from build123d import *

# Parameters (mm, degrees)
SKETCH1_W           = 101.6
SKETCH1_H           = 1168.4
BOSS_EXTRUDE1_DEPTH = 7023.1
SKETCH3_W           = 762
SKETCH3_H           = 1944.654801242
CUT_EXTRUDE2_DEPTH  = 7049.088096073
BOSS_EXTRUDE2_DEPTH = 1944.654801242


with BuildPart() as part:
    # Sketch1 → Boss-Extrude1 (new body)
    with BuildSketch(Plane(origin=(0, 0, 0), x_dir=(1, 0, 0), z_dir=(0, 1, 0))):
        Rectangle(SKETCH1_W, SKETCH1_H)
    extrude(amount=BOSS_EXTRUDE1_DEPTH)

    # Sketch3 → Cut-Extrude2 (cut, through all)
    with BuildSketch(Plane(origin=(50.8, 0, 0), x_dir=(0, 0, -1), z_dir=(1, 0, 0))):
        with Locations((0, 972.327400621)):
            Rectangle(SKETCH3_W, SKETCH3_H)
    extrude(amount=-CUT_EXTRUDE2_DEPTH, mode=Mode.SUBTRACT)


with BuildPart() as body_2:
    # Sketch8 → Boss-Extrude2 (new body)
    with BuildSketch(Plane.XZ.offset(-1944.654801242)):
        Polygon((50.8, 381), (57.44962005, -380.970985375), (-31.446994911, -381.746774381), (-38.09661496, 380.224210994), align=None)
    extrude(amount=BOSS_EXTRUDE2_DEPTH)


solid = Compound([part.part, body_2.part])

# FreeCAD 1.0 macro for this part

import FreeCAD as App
import Part
import Sketcher
Q = App.Units.Quantity

doc = App.newDocument("Part")
body = doc.addObject("PartDesign::Body", "Body")

sketch1 = body.newObject("Sketcher::SketchObject", "Sketch")
sketch1.AttachmentSupport = (doc.getObject("XZ_Plane"), [""])
sketch1.MapMode = "FlatFace"
sketch1.addGeometry(Part.LineSegment(App.Vector(-50.8, -584.2, 0), App.Vector(-50.8, 584.2, 0)), False)
sketch1.addGeometry(Part.LineSegment(App.Vector(-50.8, 584.2, 0), App.Vector(50.8, 584.2, 0)), False)
sketch1.addGeometry(Part.LineSegment(App.Vector(50.8, 584.2, 0), App.Vector(50.8, -584.2, 0)), False)
sketch1.addGeometry(Part.LineSegment(App.Vector(50.8, -584.2, 0), App.Vector(-50.8, -584.2, 0)), False)
sketch1.addConstraint(Sketcher.Constraint("Coincident", 0, 2, 1, 1))
sketch1.addConstraint(Sketcher.Constraint("Coincident", 1, 2, 2, 1))
sketch1.addConstraint(Sketcher.Constraint("Coincident", 2, 2, 3, 1))
sketch1.addConstraint(Sketcher.Constraint("Coincident", 3, 2, 0, 1))
sketch1.addConstraint(Sketcher.Constraint("Vertical", 0))
sketch1.addConstraint(Sketcher.Constraint("Horizontal", 1))
sketch1.addConstraint(Sketcher.Constraint("Vertical", 2))
sketch1.addConstraint(Sketcher.Constraint("Horizontal", 3))
sketch1.addConstraint(Sketcher.Constraint("Symmetric", 0, 2, 2, 2, -1, 1))
sketch1.addConstraint(Sketcher.Constraint("DistanceX", 1, 1, 1, 2, Q("4 in")))
sketch1.addConstraint(Sketcher.Constraint("DistanceY", 0, 1, 0, 2, Q("46 in")))
pad1 = body.newObject("PartDesign::Pad", "Pad")
pad1.Profile = sketch1
pad1.Length = Q("276.5 in")
pad1.Reversed = True

sketch2 = body.newObject("Sketcher::SketchObject", "Sketch001")
sketch2.AttachmentSupport = (doc.getObject("YZ_Plane"), [""])
sketch2.MapMode = "FlatFace"
sketch2.AttachmentOffset = App.Placement(App.Vector(0, 0, 2 * 25.4), App.Rotation())
sketch2.addGeometry(Part.LineSegment(App.Vector(1944.654801, 381, 0), App.Vector(0, 381, 0)), False)
sketch2.addGeometry(Part.LineSegment(App.Vector(0, 381, 0), App.Vector(0, -381, 0)), False)
sketch2.addGeometry(Part.LineSegment(App.Vector(0, -381, 0), App.Vector(1944.654801, -381, 0)), False)
sketch2.addGeometry(Part.LineSegment(App.Vector(1944.654801, -381, 0), App.Vector(1944.654801, 381, 0)), False)
sketch2.addConstraint(Sketcher.Constraint("Coincident", 0, 2, 1, 1))
sketch2.addConstraint(Sketcher.Constraint("Coincident", 1, 2, 2, 1))
sketch2.addConstraint(Sketcher.Constraint("Coincident", 2, 2, 3, 1))
sketch2.addConstraint(Sketcher.Constraint("Coincident", 3, 2, 0, 1))
sketch2.addConstraint(Sketcher.Constraint("Horizontal", 0))
sketch2.addConstraint(Sketcher.Constraint("Vertical", 1))
sketch2.addConstraint(Sketcher.Constraint("Horizontal", 2))
sketch2.addConstraint(Sketcher.Constraint("Vertical", 3))
sketch2.addConstraint(Sketcher.Constraint("Symmetric", 0, 2, 1, 2, -1, 1))
sketch2.addConstraint(Sketcher.Constraint("DistanceY", 1, 2, 1, 1, Q("30 in")))
sketch2.addConstraint(Sketcher.Constraint("DistanceX", 0, 2, 0, 1, Q("1944.654801 mm")))
pocket1 = body.newObject("PartDesign::Pocket", "Pocket")
pocket1.Profile = sketch2
pocket1.Type = "ThroughAll"
body2 = doc.addObject("PartDesign::Body", "Body001")

sketch3 = body2.newObject("Sketcher::SketchObject", "Sketch002")
sketch3.AttachmentSupport = (doc.getObject("XZ_Plane001"), [""])
sketch3.MapMode = "FlatFace"
sketch3.AttachmentOffset = App.Placement(App.Vector(0, 0, -1944.654801), App.Rotation())
sketch3.addGeometry(Part.LineSegment(App.Vector(57.44962, -380.970985, 0), App.Vector(50.8, 381, 0)), False)
sketch3.addGeometry(Part.LineSegment(App.Vector(50.8, 381, 0), App.Vector(-38.096615, 380.224211, 0)), False)
sketch3.addGeometry(Part.LineSegment(App.Vector(-38.096615, 380.224211, 0), App.Vector(-31.446995, -381.746774, 0)), False)
sketch3.addGeometry(Part.LineSegment(App.Vector(-31.446995, -381.746774, 0), App.Vector(57.44962, -380.970985, 0)), False)
sketch3.addConstraint(Sketcher.Constraint("Coincident", 0, 2, 1, 1))
sketch3.addConstraint(Sketcher.Constraint("Coincident", 1, 2, 2, 1))
sketch3.addConstraint(Sketcher.Constraint("Coincident", 2, 2, 3, 1))
sketch3.addConstraint(Sketcher.Constraint("Coincident", 3, 2, 0, 1))
sketch3.addConstraint(Sketcher.Constraint("Perpendicular", 0, 1))
sketch3.addConstraint(Sketcher.Constraint("Perpendicular", 1, 2))
sketch3.addConstraint(Sketcher.Constraint("Perpendicular", 2, 3))
sketch3.addConstraint(Sketcher.Constraint("Distance", 0, Q("30 in")))
sketch3.addConstraint(Sketcher.Constraint("DistanceX", -1, 1, 0, 2, Q("2 in")))
sketch3.addConstraint(Sketcher.Constraint("DistanceY", -1, 1, 0, 2, Q("15 in")))
sketch3.addConstraint(Sketcher.Constraint("Distance", 1, Q("3.5 in")))
sketch3.addConstraint(Sketcher.Constraint("Angle", 0, Q("90.5 deg")))
pad2 = body2.newObject("PartDesign::Pad", "Pad001")
pad2.Profile = sketch3
pad2.Length = 1944.654801

doc.recompute()
